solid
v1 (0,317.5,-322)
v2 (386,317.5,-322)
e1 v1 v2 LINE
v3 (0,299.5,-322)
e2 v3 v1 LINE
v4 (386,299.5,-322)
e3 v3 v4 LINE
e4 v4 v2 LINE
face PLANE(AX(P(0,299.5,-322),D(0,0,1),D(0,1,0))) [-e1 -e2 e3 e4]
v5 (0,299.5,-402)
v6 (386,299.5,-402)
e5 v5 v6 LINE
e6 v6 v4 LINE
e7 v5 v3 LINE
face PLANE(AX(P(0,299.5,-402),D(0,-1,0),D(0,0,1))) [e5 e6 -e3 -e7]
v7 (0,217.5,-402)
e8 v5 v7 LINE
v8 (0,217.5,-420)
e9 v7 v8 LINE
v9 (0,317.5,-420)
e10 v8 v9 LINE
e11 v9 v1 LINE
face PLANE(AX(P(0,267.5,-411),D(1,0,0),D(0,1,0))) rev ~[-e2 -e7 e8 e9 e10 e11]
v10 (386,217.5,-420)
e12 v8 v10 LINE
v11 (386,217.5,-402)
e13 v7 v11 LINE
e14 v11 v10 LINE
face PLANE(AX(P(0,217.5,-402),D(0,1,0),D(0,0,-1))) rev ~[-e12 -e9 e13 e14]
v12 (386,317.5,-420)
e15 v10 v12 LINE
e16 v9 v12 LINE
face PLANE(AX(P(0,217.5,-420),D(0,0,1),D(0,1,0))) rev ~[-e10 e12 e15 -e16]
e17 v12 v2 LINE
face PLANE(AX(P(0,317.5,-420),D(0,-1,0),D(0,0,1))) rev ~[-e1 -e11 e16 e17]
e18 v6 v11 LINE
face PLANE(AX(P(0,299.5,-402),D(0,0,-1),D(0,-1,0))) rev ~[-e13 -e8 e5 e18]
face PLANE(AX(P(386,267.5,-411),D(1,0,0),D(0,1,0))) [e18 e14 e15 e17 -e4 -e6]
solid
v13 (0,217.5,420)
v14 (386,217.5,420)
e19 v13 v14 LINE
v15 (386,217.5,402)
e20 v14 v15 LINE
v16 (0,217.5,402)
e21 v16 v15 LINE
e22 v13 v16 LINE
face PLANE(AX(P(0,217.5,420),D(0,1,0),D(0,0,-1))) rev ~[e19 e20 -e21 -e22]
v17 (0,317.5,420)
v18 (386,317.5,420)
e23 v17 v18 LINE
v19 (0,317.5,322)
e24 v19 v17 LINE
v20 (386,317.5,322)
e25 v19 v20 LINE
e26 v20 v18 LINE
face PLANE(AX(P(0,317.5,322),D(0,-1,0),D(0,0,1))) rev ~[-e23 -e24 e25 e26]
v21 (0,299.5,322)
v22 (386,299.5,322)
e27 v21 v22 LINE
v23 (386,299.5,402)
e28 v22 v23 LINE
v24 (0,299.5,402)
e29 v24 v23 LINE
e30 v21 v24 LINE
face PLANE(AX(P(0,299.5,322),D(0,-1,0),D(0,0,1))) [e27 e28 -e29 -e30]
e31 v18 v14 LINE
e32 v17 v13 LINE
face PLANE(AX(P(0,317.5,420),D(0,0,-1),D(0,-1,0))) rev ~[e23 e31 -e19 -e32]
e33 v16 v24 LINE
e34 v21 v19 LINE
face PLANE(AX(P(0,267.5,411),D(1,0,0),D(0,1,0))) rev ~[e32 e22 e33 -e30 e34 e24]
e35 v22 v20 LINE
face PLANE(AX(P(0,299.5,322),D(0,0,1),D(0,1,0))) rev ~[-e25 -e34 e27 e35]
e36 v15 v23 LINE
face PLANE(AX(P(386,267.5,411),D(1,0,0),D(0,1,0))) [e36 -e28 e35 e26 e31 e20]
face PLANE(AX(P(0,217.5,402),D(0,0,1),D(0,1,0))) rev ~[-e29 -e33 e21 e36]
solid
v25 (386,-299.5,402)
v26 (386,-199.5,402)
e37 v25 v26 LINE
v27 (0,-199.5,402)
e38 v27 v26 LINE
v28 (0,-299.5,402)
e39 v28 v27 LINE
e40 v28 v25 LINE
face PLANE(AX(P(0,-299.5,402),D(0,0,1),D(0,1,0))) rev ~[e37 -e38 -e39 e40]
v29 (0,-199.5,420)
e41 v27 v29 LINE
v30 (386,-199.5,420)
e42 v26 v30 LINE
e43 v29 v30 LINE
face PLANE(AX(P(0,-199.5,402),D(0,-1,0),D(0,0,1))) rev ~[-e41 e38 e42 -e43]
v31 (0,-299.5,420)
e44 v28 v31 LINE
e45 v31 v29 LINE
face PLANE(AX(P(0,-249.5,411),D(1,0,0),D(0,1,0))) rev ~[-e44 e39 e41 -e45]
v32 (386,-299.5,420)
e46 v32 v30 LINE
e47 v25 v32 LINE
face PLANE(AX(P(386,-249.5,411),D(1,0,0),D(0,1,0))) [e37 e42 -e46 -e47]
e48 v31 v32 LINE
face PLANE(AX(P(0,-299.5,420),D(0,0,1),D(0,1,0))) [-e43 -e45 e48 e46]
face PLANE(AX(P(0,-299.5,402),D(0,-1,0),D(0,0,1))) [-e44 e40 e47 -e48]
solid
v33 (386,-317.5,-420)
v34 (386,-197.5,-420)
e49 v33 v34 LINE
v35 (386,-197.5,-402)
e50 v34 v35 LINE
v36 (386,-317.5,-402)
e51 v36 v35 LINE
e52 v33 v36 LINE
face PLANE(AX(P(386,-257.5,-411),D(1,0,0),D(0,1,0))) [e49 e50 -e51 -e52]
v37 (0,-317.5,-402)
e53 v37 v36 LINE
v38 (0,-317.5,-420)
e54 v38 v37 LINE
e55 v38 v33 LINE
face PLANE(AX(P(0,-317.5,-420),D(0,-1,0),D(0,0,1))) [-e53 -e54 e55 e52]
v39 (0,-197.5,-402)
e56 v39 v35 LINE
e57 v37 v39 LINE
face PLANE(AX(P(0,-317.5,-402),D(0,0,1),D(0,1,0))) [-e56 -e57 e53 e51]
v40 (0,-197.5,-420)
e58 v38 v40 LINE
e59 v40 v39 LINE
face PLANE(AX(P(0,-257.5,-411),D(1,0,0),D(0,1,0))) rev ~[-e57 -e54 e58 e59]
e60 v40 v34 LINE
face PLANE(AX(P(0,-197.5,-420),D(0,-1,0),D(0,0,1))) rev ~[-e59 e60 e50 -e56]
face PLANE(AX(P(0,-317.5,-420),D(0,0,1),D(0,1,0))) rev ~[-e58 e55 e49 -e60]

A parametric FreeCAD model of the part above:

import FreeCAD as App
import Part
import Sketcher

V = App.Vector
Q = App.Units.Quantity

doc = App.newDocument("Part")
params = doc.addObject("Spreadsheet::Sheet", "Params")
for row, (alias, value) in enumerate([
    ("sketch1_width", "100 mm"),
    ("sketch1_width2", "82 mm"),
    ("sketch1_width3", "120 mm"),
    ("sketch1_height", "80 mm"),
    ("pad1_length", "386 mm"),
], start=1):
    params.set(f"A{row}", alias)
    params.set(f"B{row}", "=" + value)
    params.setAlias(f"B{row}", alias)

body = doc.addObject("PartDesign::Body", "Body")
body.AllowCompound = True

# Sketch on YZ plane
sketch1 = body.newObject("Sketcher::SketchObject", "Sketch")
sketch1.AttachmentSupport = (doc.getObject("YZ_Plane"), [""])
sketch1.MapMode = "FlatFace"
sketch1.addGeometry(Part.LineSegment(V(318, 420, 0), V(218, 420, 0)), False)
sketch1.addGeometry(Part.LineSegment(V(218, 420, 0), V(218, 402, 0)), False)
sketch1.addGeometry(Part.LineSegment(V(218, 402, 0), V(300, 402, 0)), False)
sketch1.addGeometry(Part.LineSegment(V(300, 402, 0), V(300, 322, 0)), False)
sketch1.addGeometry(Part.LineSegment(V(300, 322, 0), V(318, 322, 0)), False)
sketch1.addGeometry(Part.LineSegment(V(318, 322, 0), V(318, 420, 0)), False)
sketch1.addGeometry(Part.LineSegment(V(-300, 420, 0), V(-300, 402, 0)), False)
sketch1.addGeometry(Part.LineSegment(V(-300, 402, 0), V(-200, 402, 0)), False)
sketch1.addGeometry(Part.LineSegment(V(-200, 402, 0), V(-200, 420, 0)), False)
sketch1.addGeometry(Part.LineSegment(V(-200, 420, 0), V(-300, 420, 0)), False)
sketch1.addGeometry(Part.LineSegment(V(-318, -402, 0), V(-318, -420, 0)), False)
sketch1.addGeometry(Part.LineSegment(V(-318, -420, 0), V(-198, -420, 0)), False)
sketch1.addGeometry(Part.LineSegment(V(-198, -420, 0), V(-198, -402, 0)), False)
sketch1.addGeometry(Part.LineSegment(V(-198, -402, 0), V(-318, -402, 0)), False)
sketch1.addGeometry(Part.LineSegment(V(218, -420, 0), V(318, -420, 0)), False)
sketch1.addGeometry(Part.LineSegment(V(318, -420, 0), V(318, -322, 0)), False)
sketch1.addGeometry(Part.LineSegment(V(318, -322, 0), V(300, -322, 0)), False)
sketch1.addGeometry(Part.LineSegment(V(300, -322, 0), V(300, -402, 0)), False)
sketch1.addGeometry(Part.LineSegment(V(300, -402, 0), V(218, -402, 0)), False)
sketch1.addGeometry(Part.LineSegment(V(218, -402, 0), V(218, -420, 0)), False)
sketch1.addConstraint(Sketcher.Constraint("Coincident", 0, 2, 1, 1))
sketch1.addConstraint(Sketcher.Constraint("Coincident", 1, 2, 2, 1))
sketch1.addConstraint(Sketcher.Constraint("Coincident", 2, 2, 3, 1))
sketch1.addConstraint(Sketcher.Constraint("Coincident", 3, 2, 4, 1))
sketch1.addConstraint(Sketcher.Constraint("Coincident", 4, 2, 5, 1))
sketch1.addConstraint(Sketcher.Constraint("Coincident", 5, 2, 0, 1))
sketch1.addConstraint(Sketcher.Constraint("Coincident", 6, 2, 7, 1))
sketch1.addConstraint(Sketcher.Constraint("Coincident", 7, 2, 8, 1))
sketch1.addConstraint(Sketcher.Constraint("Coincident", 8, 2, 9, 1))
sketch1.addConstraint(Sketcher.Constraint("Coincident", 9, 2, 6, 1))
sketch1.addConstraint(Sketcher.Constraint("Coincident", 10, 2, 11, 1))
sketch1.addConstraint(Sketcher.Constraint("Coincident", 11, 2, 12, 1))
sketch1.addConstraint(Sketcher.Constraint("Coincident", 12, 2, 13, 1))
sketch1.addConstraint(Sketcher.Constraint("Coincident", 13, 2, 10, 1))
sketch1.addConstraint(Sketcher.Constraint("Coincident", 14, 2, 15, 1))
sketch1.addConstraint(Sketcher.Constraint("Coincident", 15, 2, 16, 1))
sketch1.addConstraint(Sketcher.Constraint("Coincident", 16, 2, 17, 1))
sketch1.addConstraint(Sketcher.Constraint("Coincident", 17, 2, 18, 1))
sketch1.addConstraint(Sketcher.Constraint("Coincident", 18, 2, 19, 1))
sketch1.addConstraint(Sketcher.Constraint("Coincident", 19, 2, 14, 1))
sketch1.addConstraint(Sketcher.Constraint("Horizontal", 0))
sketch1.addConstraint(Sketcher.Constraint("Vertical", 1))
sketch1.addConstraint(Sketcher.Constraint("Horizontal", 2))
sketch1.addConstraint(Sketcher.Constraint("Vertical", 3))
sketch1.addConstraint(Sketcher.Constraint("Horizontal", 4))
sketch1.addConstraint(Sketcher.Constraint("Vertical", 5))
sketch1.addConstraint(Sketcher.Constraint("Vertical", 6))
sketch1.addConstraint(Sketcher.Constraint("Horizontal", 7))
sketch1.addConstraint(Sketcher.Constraint("Vertical", 8))
sketch1.addConstraint(Sketcher.Constraint("Horizontal", 9))
sketch1.addConstraint(Sketcher.Constraint("Vertical", 10))
sketch1.addConstraint(Sketcher.Constraint("Horizontal", 11))
sketch1.addConstraint(Sketcher.Constraint("Vertical", 12))
sketch1.addConstraint(Sketcher.Constraint("Horizontal", 13))
sketch1.addConstraint(Sketcher.Constraint("Horizontal", 14))
sketch1.addConstraint(Sketcher.Constraint("Vertical", 15))
sketch1.addConstraint(Sketcher.Constraint("Horizontal", 16))
sketch1.addConstraint(Sketcher.Constraint("Vertical", 17))
sketch1.addConstraint(Sketcher.Constraint("Horizontal", 18))
sketch1.addConstraint(Sketcher.Constraint("Vertical", 19))
sketch1.addConstraint(Sketcher.Constraint("Symmetric", 5, 2, 10, 2, -1, 1))
sketch1.addConstraint(Sketcher.Constraint("Symmetric", 6, 2, 17, 2, -1, 1))
sketch1.addConstraint(Sketcher.Constraint("Symmetric", 2, 2, 6, 2, -2))
sketch1.addConstraint(Sketcher.Constraint("Symmetric", 10, 2, 14, 2, -2))
sketch1.addConstraint(Sketcher.Constraint("Horizontal", 5, 2, 8, 2))
sketch1.addConstraint(Sketcher.Constraint("Horizontal", 13, 2, 17, 2))
sketch1.addConstraint(Sketcher.Constraint("Vertical", 1, 2, 18, 2))
sketch1.addConstraint(Sketcher.Constraint("Equal", 0, 7))
sketch1.addConstraint(Sketcher.Constraint("Equal", 16, 1))
sketch1.addConstraint(Sketcher.Constraint("Equal", 5, 15))
sketch1.addConstraint(Sketcher.Constraint("DistanceX", 0, 2, 0, 1, Q("100 mm")))
sketch1.addConstraint(Sketcher.Constraint("DistanceX", 2, 1, 2, 2, Q("82 mm")))
sketch1.addConstraint(Sketcher.Constraint("DistanceX", 11, 1, 11, 2, Q("120 mm")))
sketch1.addConstraint(Sketcher.Constraint("DistanceY", 3, 2, 3, 1, Q("80 mm")))
sketch1.addConstraint(Sketcher.Constraint("DistanceY", -1, 1, 0, 2, Q("420 mm")))
sketch1.addConstraint(Sketcher.Constraint("DistanceX", 6, 2, 1, 2, Q("517 mm")))
sketch1.setExpression("Constraints[50]", "Params.sketch1_width")
sketch1.setExpression("Constraints[51]", "Params.sketch1_width2")
sketch1.setExpression("Constraints[52]", "Params.sketch1_width3")
sketch1.setExpression("Constraints[53]", "Params.sketch1_height")
pad1 = body.newObject("PartDesign::Pad", "Pad")
pad1.Profile = sketch1
pad1.setExpression("Length", "Params.pad1_length")

doc.recompute()
